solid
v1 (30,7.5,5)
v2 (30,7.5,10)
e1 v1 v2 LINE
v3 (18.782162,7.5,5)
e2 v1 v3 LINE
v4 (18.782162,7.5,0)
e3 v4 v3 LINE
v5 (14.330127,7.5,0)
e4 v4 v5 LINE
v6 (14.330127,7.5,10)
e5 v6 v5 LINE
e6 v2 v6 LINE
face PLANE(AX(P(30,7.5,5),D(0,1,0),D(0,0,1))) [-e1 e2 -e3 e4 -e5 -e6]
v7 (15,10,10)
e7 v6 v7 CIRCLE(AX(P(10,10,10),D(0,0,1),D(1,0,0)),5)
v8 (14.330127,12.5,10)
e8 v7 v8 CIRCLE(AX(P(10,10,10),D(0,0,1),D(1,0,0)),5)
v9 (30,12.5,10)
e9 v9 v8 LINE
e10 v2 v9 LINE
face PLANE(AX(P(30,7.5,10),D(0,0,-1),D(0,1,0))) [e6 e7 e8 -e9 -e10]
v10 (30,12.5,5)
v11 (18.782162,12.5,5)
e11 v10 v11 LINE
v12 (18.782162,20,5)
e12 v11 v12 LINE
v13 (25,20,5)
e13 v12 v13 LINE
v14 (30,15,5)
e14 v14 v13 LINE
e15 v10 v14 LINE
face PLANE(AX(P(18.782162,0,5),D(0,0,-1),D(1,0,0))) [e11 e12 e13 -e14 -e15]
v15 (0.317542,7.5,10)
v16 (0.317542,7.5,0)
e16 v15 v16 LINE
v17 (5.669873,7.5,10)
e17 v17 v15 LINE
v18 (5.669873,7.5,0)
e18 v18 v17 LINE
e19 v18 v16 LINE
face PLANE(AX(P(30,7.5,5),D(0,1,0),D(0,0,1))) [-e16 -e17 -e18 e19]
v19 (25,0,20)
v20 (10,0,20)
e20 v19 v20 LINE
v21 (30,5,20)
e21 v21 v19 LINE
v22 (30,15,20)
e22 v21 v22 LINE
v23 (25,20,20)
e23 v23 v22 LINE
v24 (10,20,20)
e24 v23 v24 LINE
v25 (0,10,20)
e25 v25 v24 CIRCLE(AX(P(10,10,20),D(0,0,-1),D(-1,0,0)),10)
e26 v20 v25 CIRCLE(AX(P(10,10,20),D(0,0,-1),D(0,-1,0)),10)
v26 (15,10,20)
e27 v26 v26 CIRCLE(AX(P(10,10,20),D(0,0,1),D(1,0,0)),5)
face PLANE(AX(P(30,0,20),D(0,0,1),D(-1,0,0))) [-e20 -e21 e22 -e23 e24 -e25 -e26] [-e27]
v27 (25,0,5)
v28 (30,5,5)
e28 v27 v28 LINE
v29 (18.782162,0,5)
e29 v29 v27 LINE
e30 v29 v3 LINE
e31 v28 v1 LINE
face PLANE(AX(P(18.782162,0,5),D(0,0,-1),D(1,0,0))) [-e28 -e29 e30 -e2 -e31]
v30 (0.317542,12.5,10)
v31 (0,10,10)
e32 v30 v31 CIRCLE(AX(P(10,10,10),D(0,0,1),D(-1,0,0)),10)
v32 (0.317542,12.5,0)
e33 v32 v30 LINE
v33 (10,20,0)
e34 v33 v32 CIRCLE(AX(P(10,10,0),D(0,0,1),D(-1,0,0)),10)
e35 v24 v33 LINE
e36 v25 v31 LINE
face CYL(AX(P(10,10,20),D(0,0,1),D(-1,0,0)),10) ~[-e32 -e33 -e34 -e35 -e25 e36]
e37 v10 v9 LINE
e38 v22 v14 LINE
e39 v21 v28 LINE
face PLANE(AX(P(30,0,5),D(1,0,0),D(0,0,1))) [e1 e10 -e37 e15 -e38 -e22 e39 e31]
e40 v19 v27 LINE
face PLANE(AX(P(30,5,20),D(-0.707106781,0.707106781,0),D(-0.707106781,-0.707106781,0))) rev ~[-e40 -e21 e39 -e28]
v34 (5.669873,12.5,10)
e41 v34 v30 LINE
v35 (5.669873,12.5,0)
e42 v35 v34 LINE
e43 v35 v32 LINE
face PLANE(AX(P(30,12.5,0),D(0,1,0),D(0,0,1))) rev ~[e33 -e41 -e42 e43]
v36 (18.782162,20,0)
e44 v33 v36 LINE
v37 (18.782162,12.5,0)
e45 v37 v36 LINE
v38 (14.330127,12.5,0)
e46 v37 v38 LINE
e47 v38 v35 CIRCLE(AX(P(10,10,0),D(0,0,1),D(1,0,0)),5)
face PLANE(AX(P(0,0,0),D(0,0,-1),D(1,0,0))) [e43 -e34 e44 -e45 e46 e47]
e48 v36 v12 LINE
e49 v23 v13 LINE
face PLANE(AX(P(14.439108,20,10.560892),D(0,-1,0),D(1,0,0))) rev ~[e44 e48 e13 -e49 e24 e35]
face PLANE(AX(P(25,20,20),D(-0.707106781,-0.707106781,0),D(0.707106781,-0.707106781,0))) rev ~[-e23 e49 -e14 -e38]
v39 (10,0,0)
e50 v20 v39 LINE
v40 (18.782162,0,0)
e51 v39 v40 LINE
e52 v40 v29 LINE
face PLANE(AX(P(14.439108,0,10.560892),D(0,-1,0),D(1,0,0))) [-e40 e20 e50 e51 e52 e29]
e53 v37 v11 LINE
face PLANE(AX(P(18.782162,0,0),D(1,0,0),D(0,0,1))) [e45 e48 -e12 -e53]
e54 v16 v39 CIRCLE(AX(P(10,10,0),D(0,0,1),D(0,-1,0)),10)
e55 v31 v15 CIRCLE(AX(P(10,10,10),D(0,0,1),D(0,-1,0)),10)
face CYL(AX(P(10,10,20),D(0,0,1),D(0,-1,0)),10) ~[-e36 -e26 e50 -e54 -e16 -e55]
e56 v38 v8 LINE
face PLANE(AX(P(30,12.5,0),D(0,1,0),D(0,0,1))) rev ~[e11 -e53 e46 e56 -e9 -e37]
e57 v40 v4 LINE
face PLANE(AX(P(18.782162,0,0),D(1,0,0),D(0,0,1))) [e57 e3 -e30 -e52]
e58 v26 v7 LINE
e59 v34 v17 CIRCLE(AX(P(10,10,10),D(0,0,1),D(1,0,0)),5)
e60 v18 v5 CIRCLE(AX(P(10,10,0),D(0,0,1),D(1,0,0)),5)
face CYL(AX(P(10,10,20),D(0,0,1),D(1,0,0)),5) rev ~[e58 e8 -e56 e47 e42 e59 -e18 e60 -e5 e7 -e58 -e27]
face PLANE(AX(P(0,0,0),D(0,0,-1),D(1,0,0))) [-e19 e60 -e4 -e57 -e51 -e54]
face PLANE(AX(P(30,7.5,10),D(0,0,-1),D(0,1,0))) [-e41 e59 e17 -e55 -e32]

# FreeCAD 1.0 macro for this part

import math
import FreeCAD as App
import Part
import Sketcher

V = App.Vector

doc = App.newDocument("Part")
params = doc.addObject("Spreadsheet::Sheet", "Params")
for row, (alias, value) in enumerate([
    ("sketch1_width", "30 mm"),
    ("sketch1_height", "20 mm"),
    ("sketch1_height2", "5 mm"),
    ("pad1_length", "20 mm"),
    ("sketch2_radius", "10 mm"),
    ("pocket1_length", "25 mm"),
    ("sketch3_radius", "10 mm"),
    ("pocket2_length", "25 mm"),
    ("sketch4_width", "5 mm"),
    ("pocket3_length", "25 mm"),
    ("sketch5_width", "5 mm"),
    ("pocket4_length", "25 mm"),
    ("sketch6_diameter", "10 mm"),
    ("pocket5_length", "30 mm"),
    ("sketch7_width", "5 mm"),
    ("pocket6_length", "50 mm"),
    ("sketch8_width", "5 mm"),
    ("pocket7_length", "50 mm"),
], start=1):
    params.set(f"A{row}", alias)
    params.set(f"B{row}", "=" + value)
    params.setAlias(f"B{row}", alias)

body = doc.addObject("PartDesign::Body", "Body")

# Sketch on XZ plane
sketch1 = doc.addObject("Sketcher::SketchObject", "Sketch")
body.addObject(sketch1)
sketch1.AttachmentSupport = (doc.XZ_Plane, [""])
sketch1.MapMode = "FlatFace"
sketch1.addGeometry(Part.LineSegment(V(0, 20, 0), V(0, 0, 0)), False)
sketch1.addGeometry(Part.LineSegment(V(0, 0, 0), V(19, 0, 0)), False)
sketch1.addGeometry(Part.LineSegment(V(19, 0, 0), V(19, 5, 0)), False)
sketch1.addGeometry(Part.LineSegment(V(19, 5, 0), V(30, 5, 0)), False)
sketch1.addGeometry(Part.LineSegment(V(30, 5, 0), V(30, 20, 0)), False)
sketch1.addGeometry(Part.LineSegment(V(30, 20, 0), V(0, 20, 0)), False)
sketch1.addConstraint(Sketcher.Constraint("Coincident", 0, 2, 1, 1))
sketch1.addConstraint(Sketcher.Constraint("Coincident", 1, 2, 2, 1))
sketch1.addConstraint(Sketcher.Constraint("Coincident", 2, 2, 3, 1))
sketch1.addConstraint(Sketcher.Constraint("Coincident", 3, 2, 4, 1))
sketch1.addConstraint(Sketcher.Constraint("Coincident", 4, 2, 5, 1))
sketch1.addConstraint(Sketcher.Constraint("Coincident", 5, 2, 0, 1))
sketch1.addConstraint(Sketcher.Constraint("Vertical", 0))
sketch1.addConstraint(Sketcher.Constraint("Horizontal", 1))
sketch1.addConstraint(Sketcher.Constraint("Vertical", 2))
sketch1.addConstraint(Sketcher.Constraint("Horizontal", 3))
sketch1.addConstraint(Sketcher.Constraint("Vertical", 4))
sketch1.addConstraint(Sketcher.Constraint("Horizontal", 5))
sketch1.addConstraint(Sketcher.Constraint("Coincident", 0, 2, -1, 1))
sketch1.addConstraint(Sketcher.Constraint("DistanceX", 5, 2, 5, 1, 30.0))
sketch1.addConstraint(Sketcher.Constraint("DistanceY", 0, 2, 0, 1, 20.0))
sketch1.addConstraint(Sketcher.Constraint("DistanceY", 2, 1, 2, 2, 5.0))
sketch1.addConstraint(Sketcher.Constraint("DistanceX", 1, 1, 1, 2, 18.782162))
sketch1.setExpression("Constraints[13]", "Params.sketch1_width")
sketch1.setExpression("Constraints[14]", "Params.sketch1_height")
sketch1.setExpression("Constraints[15]", "Params.sketch1_height2")
pad1 = doc.addObject("PartDesign::Pad", "Pad")
body.addObject(pad1)
pad1.Profile = sketch1
pad1.setExpression("Length", "Params.pad1_length")
pad1.Reversed = True

# Sketch on XY plane
sketch2 = doc.addObject("Sketcher::SketchObject", "Sketch001")
body.addObject(sketch2)
sketch2.AttachmentSupport = (doc.XY_Plane, [""])
sketch2.MapMode = "FlatFace"
sketch2.AttachmentOffset = App.Placement(V(0, 0, 20), App.Rotation())
sketch2.addGeometry(Part.ArcOfCircle(Part.Circle(V(10, 10, 0), V(0, 0, 1), 10), math.radians(90), math.radians(180)), False)
sketch2.addGeometry(Part.LineSegment(V(10, 20, 0), V(0, 20, 0)), False)
sketch2.addGeometry(Part.LineSegment(V(0, 20, 0), V(0, 10, 0)), False)
sketch2.addConstraint(Sketcher.Constraint("Tangent", 0, 1, 1, 1))
sketch2.addConstraint(Sketcher.Constraint("Coincident", 1, 2, 2, 1))
sketch2.addConstraint(Sketcher.Constraint("Tangent", 2, 2, 0, 2))
sketch2.addConstraint(Sketcher.Constraint("Horizontal", 1))
sketch2.addConstraint(Sketcher.Constraint("Vertical", 2))
sketch2.addConstraint(Sketcher.Constraint("PointOnObject", 1, 2, -2))
sketch2.addConstraint(Sketcher.Constraint("Radius", 0, 10.0))
sketch2.addConstraint(Sketcher.Constraint("DistanceY", -1, 1, 0, 3, 10.0))
sketch2.setExpression("Constraints[6]", "Params.sketch2_radius")
pocket1 = doc.addObject("PartDesign::Pocket", "Pocket")
body.addObject(pocket1)
pocket1.Profile = sketch2
pocket1.setExpression("Length", "Params.pocket1_length")

# Sketch on XY plane
sketch3 = doc.addObject("Sketcher::SketchObject", "Sketch002")
body.addObject(sketch3)
sketch3.AttachmentSupport = (doc.XY_Plane, [""])
sketch3.MapMode = "FlatFace"
sketch3.AttachmentOffset = App.Placement(V(0, 0, 20), App.Rotation())
sketch3.addGeometry(Part.LineSegment(V(0, 0, 0), V(10, 0, 0)), False)
sketch3.addGeometry(Part.ArcOfCircle(Part.Circle(V(10, 10, 0), V(0, 0, 1), 10), math.radians(180), math.radians(270)), False)
sketch3.addGeometry(Part.LineSegment(V(0, 10, 0), V(0, 0, 0)), False)
sketch3.addConstraint(Sketcher.Constraint("Tangent", 0, 2, 1, 2))
sketch3.addConstraint(Sketcher.Constraint("Tangent", 1, 1, 2, 1))
sketch3.addConstraint(Sketcher.Constraint("Coincident", 2, 2, 0, 1))
sketch3.addConstraint(Sketcher.Constraint("Horizontal", 0))
sketch3.addConstraint(Sketcher.Constraint("Vertical", 2))
sketch3.addConstraint(Sketcher.Constraint("Coincident", 2, 2, -1, 1))
sketch3.addConstraint(Sketcher.Constraint("Radius", 1, 10.0))
sketch3.setExpression("Constraints[6]", "Params.sketch3_radius")
pocket2 = doc.addObject("PartDesign::Pocket", "Pocket001")
body.addObject(pocket2)
pocket2.Profile = sketch3
pocket2.setExpression("Length", "Params.pocket2_length")

# Sketch on XY plane
sketch4 = doc.addObject("Sketcher::SketchObject", "Sketch003")
body.addObject(sketch4)
sketch4.AttachmentSupport = (doc.XY_Plane, [""])
sketch4.MapMode = "FlatFace"
sketch4.AttachmentOffset = App.Placement(V(0, 0, 20), App.Rotation())
sketch4.addGeometry(Part.LineSegment(V(30, 20, 0), V(25, 20, 0)), False)
sketch4.addGeometry(Part.LineSegment(V(25, 20, 0), V(30, 15, 0)), False)
sketch4.addGeometry(Part.LineSegment(V(30, 15, 0), V(30, 20, 0)), False)
sketch4.addConstraint(Sketcher.Constraint("Coincident", 0, 2, 1, 1))
sketch4.addConstraint(Sketcher.Constraint("Coincident", 1, 2, 2, 1))
sketch4.addConstraint(Sketcher.Constraint("Coincident", 2, 2, 0, 1))
sketch4.addConstraint(Sketcher.Constraint("Horizontal", 0))
sketch4.addConstraint(Sketcher.Constraint("Vertical", 2))
sketch4.addConstraint(Sketcher.Constraint("Equal", 0, 2))
sketch4.addConstraint(Sketcher.Constraint("DistanceX", 0, 2, 0, 1, 5.0))
sketch4.addConstraint(Sketcher.Constraint("DistanceX", -1, 1, 0, 2, 25.0))
sketch4.addConstraint(Sketcher.Constraint("DistanceY", -1, 1, 0, 2, 20.0))
sketch4.setExpression("Constraints[6]", "Params.sketch4_width")
pocket3 = doc.addObject("PartDesign::Pocket", "Pocket002")
body.addObject(pocket3)
pocket3.Profile = sketch4
pocket3.setExpression("Length", "Params.pocket3_length")

# Sketch on XY plane
sketch5 = doc.addObject("Sketcher::SketchObject", "Sketch004")
body.addObject(sketch5)
sketch5.AttachmentSupport = (doc.XY_Plane, [""])
sketch5.MapMode = "FlatFace"
sketch5.AttachmentOffset = App.Placement(V(0, 0, 20), App.Rotation())
sketch5.addGeometry(Part.LineSegment(V(30, 5, 0), V(25, 0, 0)), False)
sketch5.addGeometry(Part.LineSegment(V(25, 0, 0), V(30, 0, 0)), False)
sketch5.addGeometry(Part.LineSegment(V(30, 0, 0), V(30, 5, 0)), False)
sketch5.addConstraint(Sketcher.Constraint("Coincident", 0, 2, 1, 1))
sketch5.addConstraint(Sketcher.Constraint("Coincident", 1, 2, 2, 1))
sketch5.addConstraint(Sketcher.Constraint("Coincident", 2, 2, 0, 1))
sketch5.addConstraint(Sketcher.Constraint("Horizontal", 1))
sketch5.addConstraint(Sketcher.Constraint("Vertical", 2))
sketch5.addConstraint(Sketcher.Constraint("PointOnObject", 0, 2, -1))
sketch5.addConstraint(Sketcher.Constraint("Equal", 1, 2))
sketch5.addConstraint(Sketcher.Constraint("DistanceX", 1, 1, 1, 2, 5.0))
sketch5.addConstraint(Sketcher.Constraint("DistanceX", -1, 1, 0, 2, 25.0))
sketch5.setExpression("Constraints[7]", "Params.sketch5_width")
pocket4 = doc.addObject("PartDesign::Pocket", "Pocket003")
body.addObject(pocket4)
pocket4.Profile = sketch5
pocket4.setExpression("Length", "Params.pocket4_length")

# Sketch on XY plane
sketch6 = doc.addObject("Sketcher::SketchObject", "Sketch005")
body.addObject(sketch6)
sketch6.AttachmentSupport = (doc.XY_Plane, [""])
sketch6.MapMode = "FlatFace"
sketch6.AttachmentOffset = App.Placement(V(0, 0, 20), App.Rotation())
sketch6.addGeometry(Part.Circle(V(10, 10, 0), V(0, 0, 1), 5), False)
sketch6.addConstraint(Sketcher.Constraint("Diameter", 0, 10.0))
sketch6.addConstraint(Sketcher.Constraint("DistanceX", -1, 1, 0, 3, 10.0))
sketch6.addConstraint(Sketcher.Constraint("DistanceY", -1, 1, 0, 3, 10.0))
sketch6.setExpression("Constraints[0]", "Params.sketch6_diameter")
pocket5 = doc.addObject("PartDesign::Pocket", "Pocket004")
body.addObject(pocket5)
pocket5.Profile = sketch6
pocket5.setExpression("Length", "Params.pocket5_length")

# Sketch on YZ plane
sketch7 = doc.addObject("Sketcher::SketchObject", "Sketch006")
body.addObject(sketch7)
sketch7.AttachmentSupport = (doc.YZ_Plane, [""])
sketch7.MapMode = "FlatFace"
sketch7.AttachmentOffset = App.Placement(V(0, 0, 30), App.Rotation())
sketch7.addGeometry(Part.LineSegment(V(8, 10, 0), V(8, 5, 0)), False)
sketch7.addGeometry(Part.LineSegment(V(8, 5, 0), V(12, 5, 0)), False)
sketch7.addGeometry(Part.LineSegment(V(12, 5, 0), V(12, 10, 0)), False)
sketch7.addGeometry(Part.LineSegment(V(12, 10, 0), V(8, 10, 0)), False)
sketch7.addConstraint(Sketcher.Constraint("Coincident", 0, 2, 1, 1))
sketch7.addConstraint(Sketcher.Constraint("Coincident", 1, 2, 2, 1))
sketch7.addConstraint(Sketcher.Constraint("Coincident", 2, 2, 3, 1))
sketch7.addConstraint(Sketcher.Constraint("Coincident", 3, 2, 0, 1))
sketch7.addConstraint(Sketcher.Constraint("Vertical", 0))
sketch7.addConstraint(Sketcher.Constraint("Horizontal", 1))
sketch7.addConstraint(Sketcher.Constraint("Vertical", 2))
sketch7.addConstraint(Sketcher.Constraint("Horizontal", 3))
sketch7.addConstraint(Sketcher.Constraint("Equal", 3, 0))
sketch7.addConstraint(Sketcher.Constraint("DistanceX", 1, 1, 1, 2, 5.0))
sketch7.addConstraint(Sketcher.Constraint("DistanceY", -1, 1, 0, 2, 5.0))
sketch7.addConstraint(Sketcher.Constraint("DistanceX", -1, 1, 0, 2, 7.5))
sketch7.setExpression("Constraints[9]", "Params.sketch7_width")
pocket6 = doc.addObject("PartDesign::Pocket", "Pocket005")
body.addObject(pocket6)
pocket6.Profile = sketch7
pocket6.setExpression("Length", "Params.pocket6_length")

# Sketch on YZ plane
sketch8 = doc.addObject("Sketcher::SketchObject", "Sketch007")
body.addObject(sketch8)
sketch8.AttachmentSupport = (doc.YZ_Plane, [""])
sketch8.MapMode = "FlatFace"
sketch8.AttachmentOffset = App.Placement(V(0, 0, 30), App.Rotation())
sketch8.addGeometry(Part.LineSegment(V(8, 5, 0), V(8, 0, 0)), False)
sketch8.addGeometry(Part.LineSegment(V(8, 0, 0), V(12, 0, 0)), False)
sketch8.addGeometry(Part.LineSegment(V(12, 0, 0), V(12, 5, 0)), False)
sketch8.addGeometry(Part.LineSegment(V(12, 5, 0), V(8, 5, 0)), False)
sketch8.addConstraint(Sketcher.Constraint("Coincident", 0, 2, 1, 1))
sketch8.addConstraint(Sketcher.Constraint("Coincident", 1, 2, 2, 1))
sketch8.addConstraint(Sketcher.Constraint("Coincident", 2, 2, 3, 1))
sketch8.addConstraint(Sketcher.Constraint("Coincident", 3, 2, 0, 1))
sketch8.addConstraint(Sketcher.Constraint("Vertical", 0))
sketch8.addConstraint(Sketcher.Constraint("Horizontal", 1))
sketch8.addConstraint(Sketcher.Constraint("Vertical", 2))
sketch8.addConstraint(Sketcher.Constraint("Horizontal", 3))
sketch8.addConstraint(Sketcher.Constraint("PointOnObject", 0, 2, -1))
sketch8.addConstraint(Sketcher.Constraint("Equal", 3, 0))
sketch8.addConstraint(Sketcher.Constraint("DistanceX", 1, 1, 1, 2, 5.0))
sketch8.addConstraint(Sketcher.Constraint("DistanceX", -1, 1, 0, 2, 7.5))
sketch8.setExpression("Constraints[10]", "Params.sketch8_width")
pocket7 = doc.addObject("PartDesign::Pocket", "Pocket006")
body.addObject(pocket7)
pocket7.Profile = sketch8
pocket7.setExpression("Length", "Params.pocket7_length")

doc.recompute()
